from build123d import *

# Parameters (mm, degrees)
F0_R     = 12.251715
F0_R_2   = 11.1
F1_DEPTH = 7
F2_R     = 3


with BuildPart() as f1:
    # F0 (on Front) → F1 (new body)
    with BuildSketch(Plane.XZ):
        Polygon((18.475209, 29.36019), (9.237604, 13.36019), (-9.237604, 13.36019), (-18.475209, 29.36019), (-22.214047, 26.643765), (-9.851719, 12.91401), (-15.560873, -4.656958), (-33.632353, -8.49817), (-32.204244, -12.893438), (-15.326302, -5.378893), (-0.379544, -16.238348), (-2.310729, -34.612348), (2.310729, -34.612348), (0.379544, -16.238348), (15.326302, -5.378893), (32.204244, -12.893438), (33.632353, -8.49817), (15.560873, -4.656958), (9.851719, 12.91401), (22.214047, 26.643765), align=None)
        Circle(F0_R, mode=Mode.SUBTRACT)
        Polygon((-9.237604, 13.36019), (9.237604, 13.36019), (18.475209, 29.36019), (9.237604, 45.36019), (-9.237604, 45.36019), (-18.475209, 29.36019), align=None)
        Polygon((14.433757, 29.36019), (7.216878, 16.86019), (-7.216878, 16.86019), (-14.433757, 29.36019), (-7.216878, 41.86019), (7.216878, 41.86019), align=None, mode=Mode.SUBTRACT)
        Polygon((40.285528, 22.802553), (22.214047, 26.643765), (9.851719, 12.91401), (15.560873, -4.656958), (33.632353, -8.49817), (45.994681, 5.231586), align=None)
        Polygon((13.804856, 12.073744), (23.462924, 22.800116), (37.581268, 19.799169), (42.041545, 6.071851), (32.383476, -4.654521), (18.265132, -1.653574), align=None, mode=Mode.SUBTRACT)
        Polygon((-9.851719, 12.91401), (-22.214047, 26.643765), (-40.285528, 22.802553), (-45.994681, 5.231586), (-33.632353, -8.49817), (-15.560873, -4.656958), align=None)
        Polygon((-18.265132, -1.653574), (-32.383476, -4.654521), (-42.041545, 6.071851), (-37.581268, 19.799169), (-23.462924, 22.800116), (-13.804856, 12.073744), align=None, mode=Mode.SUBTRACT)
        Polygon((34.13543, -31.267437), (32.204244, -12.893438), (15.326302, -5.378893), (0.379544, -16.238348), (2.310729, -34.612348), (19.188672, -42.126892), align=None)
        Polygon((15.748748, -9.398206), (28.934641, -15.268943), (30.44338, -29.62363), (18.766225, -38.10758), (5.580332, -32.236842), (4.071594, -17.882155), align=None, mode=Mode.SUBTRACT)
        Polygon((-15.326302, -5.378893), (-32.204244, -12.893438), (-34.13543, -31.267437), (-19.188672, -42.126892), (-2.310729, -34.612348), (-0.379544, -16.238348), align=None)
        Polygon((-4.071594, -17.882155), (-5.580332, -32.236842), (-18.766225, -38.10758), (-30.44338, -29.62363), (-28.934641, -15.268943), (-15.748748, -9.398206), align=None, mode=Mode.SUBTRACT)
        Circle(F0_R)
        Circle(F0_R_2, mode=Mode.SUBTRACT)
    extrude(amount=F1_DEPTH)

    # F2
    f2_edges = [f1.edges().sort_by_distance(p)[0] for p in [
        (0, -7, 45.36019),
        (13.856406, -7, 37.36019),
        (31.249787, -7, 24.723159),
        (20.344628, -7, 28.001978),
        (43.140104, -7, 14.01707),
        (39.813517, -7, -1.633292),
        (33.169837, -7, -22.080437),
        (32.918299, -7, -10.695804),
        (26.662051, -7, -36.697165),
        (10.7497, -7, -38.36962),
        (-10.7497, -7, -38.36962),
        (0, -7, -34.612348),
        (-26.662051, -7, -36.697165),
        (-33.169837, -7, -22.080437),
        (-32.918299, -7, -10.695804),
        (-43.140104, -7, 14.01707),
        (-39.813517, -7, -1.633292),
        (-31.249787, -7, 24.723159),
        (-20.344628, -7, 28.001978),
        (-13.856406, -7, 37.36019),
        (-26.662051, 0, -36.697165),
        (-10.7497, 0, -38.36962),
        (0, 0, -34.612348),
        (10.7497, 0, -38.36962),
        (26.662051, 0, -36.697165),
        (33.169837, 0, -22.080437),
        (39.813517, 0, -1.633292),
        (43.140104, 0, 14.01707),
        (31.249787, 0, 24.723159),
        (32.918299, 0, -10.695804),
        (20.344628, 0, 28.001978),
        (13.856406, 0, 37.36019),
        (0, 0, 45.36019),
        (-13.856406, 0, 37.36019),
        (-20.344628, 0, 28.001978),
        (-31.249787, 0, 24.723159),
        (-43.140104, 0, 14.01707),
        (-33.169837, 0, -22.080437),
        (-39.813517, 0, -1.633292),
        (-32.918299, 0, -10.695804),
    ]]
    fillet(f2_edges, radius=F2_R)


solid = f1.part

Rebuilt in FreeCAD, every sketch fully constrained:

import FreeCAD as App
import Part
import Sketcher
from FreeCAD import Vector
Q = App.Units.Quantity


def edges_at(feature, points):
    """Names of the edges that pass closest to the given points."""
    edges = feature.Shape.Edges
    near = lambda p: min(range(len(edges)), key=lambda i: edges[i].distToShape(Part.Vertex(*p))[0])
    return sorted({f"Edge{near(p) + 1}" for p in points})


def add_polygon(sketch, points):
    """Adds a closed chain of lines whose ends are joined by coincident constraints."""
    first, n = sketch.GeometryCount, len(points)
    for a, b in zip(points, points[1:] + points[:1]):
        sketch.addGeometry(Part.LineSegment(App.Vector(*a, 0), App.Vector(*b, 0)), False)
    for i in range(n):
        sketch.addConstraint(Sketcher.Constraint("Coincident", first + i, 2, first + (i + 1) % n, 1))

doc = App.newDocument("Part")
body = doc.addObject("PartDesign::Body", "Body")

sketch1 = body.newObject("Sketcher::SketchObject", "Sketch")
sketch1.AttachmentSupport = (doc.getObject("XZ_Plane"), [""])
sketch1.MapMode = "FlatFace"
add_polygon(sketch1, [(22.2, 26.6), (18.5, 29.4), (9.2, 45.4), (-9.2, 45.4), (-18.5, 29.4), (-22.2, 26.6), (-40.3, 22.8), (-46, 5.2), (-33.6, -8.5), (-32.2, -12.9), (-34.1, -31.3), (-19.2, -42.1), (-2.3, -34.6), (2.3, -34.6), (19.2, -42.1), (34.1, -31.3), (32.2, -12.9), (33.6, -8.5), (46, 5.2), (40.3, 22.8)])
add_polygon(sketch1, [(-15.7, -9.4), (-4.1, -17.9), (-5.6, -32.2), (-18.8, -38.1), (-30.4, -29.6), (-28.9, -15.3)])
sketch1.addGeometry(Part.Circle(Vector(0, 0, 0), Vector(0, 0, 1), 11.1), False)
add_polygon(sketch1, [(4.1, -17.9), (15.7, -9.4), (28.9, -15.3), (30.4, -29.6), (18.8, -38.1), (5.6, -32.2)])
add_polygon(sketch1, [(-13.8, 12.1), (-18.3, -1.7), (-32.4, -4.7), (-42, 6.1), (-37.6, 19.8), (-23.5, 22.8)])
add_polygon(sketch1, [(7.2, 41.9), (14.4, 29.4), (7.2, 16.9), (-7.2, 16.9), (-14.4, 29.4), (-7.2, 41.9)])
add_polygon(sketch1, [(18.3, -1.7), (13.8, 12.1), (23.5, 22.8), (37.6, 19.8), (42, 6.1), (32.4, -4.7)])
sketch1.addConstraint([
    Sketcher.Constraint("Horizontal", 2),
    Sketcher.Constraint("Horizontal", 12),
    Sketcher.Constraint("Horizontal", 41),
    Sketcher.Constraint("Horizontal", 44),
    Sketcher.Constraint("Coincident", 26, 3, -1, 1),
    Sketcher.Constraint("Symmetric", 0, 2, 3, 2, -2),
    Sketcher.Constraint("Symmetric", 10, 2, 13, 2, -2),
    Sketcher.Constraint("Symmetric", 9, 2, 14, 2, -2),
    Sketcher.Constraint("Symmetric", 8, 2, 15, 2, -2),
    Sketcher.Constraint("Symmetric", 7, 2, 16, 2, -2),
    Sketcher.Constraint("Symmetric", 6, 2, 17, 2, -2),
    Sketcher.Constraint("Symmetric", 5, 2, 18, 2, -2),
    Sketcher.Constraint("Symmetric", 4, 2, 19, 2, -2),
    Sketcher.Constraint("Symmetric", 25, 2, 27, 2, -2),
    Sketcher.Constraint("Symmetric", 24, 2, 28, 2, -2),
    Sketcher.Constraint("Symmetric", 23, 2, 29, 2, -2),
    Sketcher.Constraint("Symmetric", 22, 2, 30, 2, -2),
    Sketcher.Constraint("Symmetric", 21, 2, 31, 2, -2),
    Sketcher.Constraint("Symmetric", 20, 2, 32, 2, -2),
    Sketcher.Constraint("Symmetric", 39, 2, 42, 2, -2),
    Sketcher.Constraint("Symmetric", 38, 2, 45, 2, -2),
    Sketcher.Constraint("Symmetric", 37, 2, 46, 2, -2),
    Sketcher.Constraint("Symmetric", 36, 2, 47, 2, -2),
    Sketcher.Constraint("Symmetric", 35, 2, 48, 2, -2),
    Sketcher.Constraint("Symmetric", 34, 2, 49, 2, -2),
    Sketcher.Constraint("Symmetric", 33, 2, 50, 2, -2),
    Sketcher.Constraint("Parallel", 0, 10),
    Sketcher.Constraint("Parallel", 6, 16),
    Sketcher.Constraint("Parallel", 10, 20),
    Sketcher.Constraint("Parallel", 9, 21),
    Sketcher.Constraint("Parallel", 11, 22),
    Sketcher.Constraint("Parallel", 20, 23),
    Sketcher.Constraint("Parallel", 21, 24),
    Sketcher.Constraint("Parallel", 22, 25),
    Sketcher.Constraint("Parallel", 13, 28),
    Sketcher.Constraint("Parallel", 16, 33),
    Sketcher.Constraint("Parallel", 5, 34),
    Sketcher.Constraint("Parallel", 7, 35),
    Sketcher.Constraint("Parallel", 33, 36),
    Sketcher.Constraint("Parallel", 34, 37),
    Sketcher.Constraint("Parallel", 35, 38),
    Sketcher.Constraint("Parallel", 1, 39),
    Sketcher.Constraint("Parallel", 3, 40),
    Sketcher.Constraint("Parallel", 39, 42),
    Sketcher.Constraint("Parallel", 40, 43),
    Sketcher.Constraint("Horizontal", 3, 2, 39, 2),
    Sketcher.Constraint("Vertical", 41, 2, 43, 2),
    Sketcher.Constraint("Vertical", 40, 2, 44, 2),
    Sketcher.Constraint("Equal", 3, 5),
    Sketcher.Constraint("Equal", 5, 6),
    Sketcher.Constraint("Equal", 6, 7),
    Sketcher.Constraint("Equal", 4, 8),
    Sketcher.Constraint("Equal", 7, 9),
    Sketcher.Constraint("Equal", 9, 10),
    Sketcher.Constraint("Equal", 10, 11),
    Sketcher.Constraint("Equal", 20, 21),
    Sketcher.Constraint("Equal", 21, 22),
    Sketcher.Constraint("Equal", 22, 23),
    Sketcher.Constraint("Equal", 32, 33),
    Sketcher.Constraint("Equal", 33, 34),
    Sketcher.Constraint("Equal", 34, 35),
    Sketcher.Constraint("Equal", 35, 36),
    Sketcher.Constraint("Equal", 38, 39),
    Sketcher.Constraint("Diameter", 26, 22.2),
    Sketcher.Constraint("Angle", 0, Q("143.999998 deg")),
    Sketcher.Constraint("Angle", 1, Q("120.000002 deg")),
    Sketcher.Constraint("Angle", 5, Q("-168 deg")),
    Sketcher.Constraint("Angle", 6, Q("-107.999999 deg")),
    Sketcher.Constraint("Angle", 7, Q("-48 deg")),
    Sketcher.Constraint("Angle", 9, Q("-96.000003 deg")),
    Sketcher.Constraint("Angle", 11, Q("23.999999 deg")),
    Sketcher.Constraint("DistanceY", 0, 2, 1, 2, 16.0),
    Sketcher.Constraint("DistanceY", 40, 2, 39, 2, 12.5),
    Sketcher.Constraint("DistanceX", 10, 2, 12, 2, 21.499401),
    Sketcher.Constraint("DistanceX", 35, 2, 8, 2, 9.837301),
    Sketcher.Constraint("DistanceX", 45, 2, 39, 2, 0.628901),
    Sketcher.Constraint("Distance", 0, 4.621458),
    Sketcher.Constraint("DistanceY", -1, 1, 0, 2, 29.36019),
    Sketcher.Constraint("DistanceY", 22, 2, -1, 1, 38.10758),
    Sketcher.Constraint("DistanceX", 23, 2, -1, 1, 30.44338),
    Sketcher.Constraint("DistanceY", 34, 2, -1, 1, 4.654521),
])
pad1 = body.newObject("PartDesign::Pad", "Pad")
pad1.Profile = sketch1
pad1.Length = 7
doc.recompute()

fillet = body.newObject("PartDesign::Fillet", "Fillet")
fillet.Base = (pad1, edges_at(pad1, [
    (0, -7, 45.36),
    (13.856, -7, 37.36),
    (31.25, -7, 24.723),
    (20.345, -7, 28.002),
    (43.14, -7, 14.017),
    (39.814, -7, -1.633),
    (33.17, -7, -22.08),
    (32.918, -7, -10.696),
    (26.662, -7, -36.697),
    (10.75, -7, -38.37),
    (-10.75, -7, -38.37),
    (0, -7, -34.612),
    (-26.662, -7, -36.697),
    (-33.17, -7, -22.08),
    (-32.918, -7, -10.696),
    (-43.14, -7, 14.017),
    (-39.814, -7, -1.633),
    (-31.25, -7, 24.723),
    (-20.345, -7, 28.002),
    (-13.856, -7, 37.36),
    (-26.662, 0, -36.697),
    (-10.75, 0, -38.37),
    (0, 0, -34.612),
    (10.75, 0, -38.37),
    (26.662, 0, -36.697),
    (33.17, 0, -22.08),
    (39.814, 0, -1.633),
    (43.14, 0, 14.017),
    (31.25, 0, 24.723),
    (32.918, 0, -10.696),
    (20.345, 0, 28.002),
    (13.856, 0, 37.36),
    (0, 0, 45.36),
    (-13.856, 0, 37.36),
    (-20.345, 0, 28.002),
    (-31.25, 0, 24.723),
    (-43.14, 0, 14.017),
    (-33.17, 0, -22.08),
    (-39.814, 0, -1.633),
    (-32.918, 0, -10.696),
]))
fillet.Radius = 3

doc.recompute()
